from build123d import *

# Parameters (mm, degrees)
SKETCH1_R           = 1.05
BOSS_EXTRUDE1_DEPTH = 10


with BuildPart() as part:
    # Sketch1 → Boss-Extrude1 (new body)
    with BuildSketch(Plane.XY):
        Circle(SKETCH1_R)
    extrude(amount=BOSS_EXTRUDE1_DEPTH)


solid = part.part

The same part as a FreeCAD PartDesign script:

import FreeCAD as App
import Part
import Sketcher
Q = App.Units.Quantity

doc = App.newDocument("Part")
body = doc.addObject("PartDesign::Body", "Body")

sketch1 = body.newObject("Sketcher::SketchObject", "Sketch")
sketch1.AttachmentSupport = (doc.getObject("XY_Plane"), [""])
sketch1.MapMode = "FlatFace"
sketch1.addGeometry(Part.Circle(App.Vector(0, 0, 0), App.Vector(0, 0, 1), 1.05), False)
sketch1.addConstraint([
    Sketcher.Constraint("Coincident", 0, 3, -1, 1),
    Sketcher.Constraint("Diameter", 0, Q("2.1 mm")),
])
pad1 = body.newObject("PartDesign::Pad", "Pad")
pad1.Profile = sketch1
pad1.Length = 10

doc.recompute()
